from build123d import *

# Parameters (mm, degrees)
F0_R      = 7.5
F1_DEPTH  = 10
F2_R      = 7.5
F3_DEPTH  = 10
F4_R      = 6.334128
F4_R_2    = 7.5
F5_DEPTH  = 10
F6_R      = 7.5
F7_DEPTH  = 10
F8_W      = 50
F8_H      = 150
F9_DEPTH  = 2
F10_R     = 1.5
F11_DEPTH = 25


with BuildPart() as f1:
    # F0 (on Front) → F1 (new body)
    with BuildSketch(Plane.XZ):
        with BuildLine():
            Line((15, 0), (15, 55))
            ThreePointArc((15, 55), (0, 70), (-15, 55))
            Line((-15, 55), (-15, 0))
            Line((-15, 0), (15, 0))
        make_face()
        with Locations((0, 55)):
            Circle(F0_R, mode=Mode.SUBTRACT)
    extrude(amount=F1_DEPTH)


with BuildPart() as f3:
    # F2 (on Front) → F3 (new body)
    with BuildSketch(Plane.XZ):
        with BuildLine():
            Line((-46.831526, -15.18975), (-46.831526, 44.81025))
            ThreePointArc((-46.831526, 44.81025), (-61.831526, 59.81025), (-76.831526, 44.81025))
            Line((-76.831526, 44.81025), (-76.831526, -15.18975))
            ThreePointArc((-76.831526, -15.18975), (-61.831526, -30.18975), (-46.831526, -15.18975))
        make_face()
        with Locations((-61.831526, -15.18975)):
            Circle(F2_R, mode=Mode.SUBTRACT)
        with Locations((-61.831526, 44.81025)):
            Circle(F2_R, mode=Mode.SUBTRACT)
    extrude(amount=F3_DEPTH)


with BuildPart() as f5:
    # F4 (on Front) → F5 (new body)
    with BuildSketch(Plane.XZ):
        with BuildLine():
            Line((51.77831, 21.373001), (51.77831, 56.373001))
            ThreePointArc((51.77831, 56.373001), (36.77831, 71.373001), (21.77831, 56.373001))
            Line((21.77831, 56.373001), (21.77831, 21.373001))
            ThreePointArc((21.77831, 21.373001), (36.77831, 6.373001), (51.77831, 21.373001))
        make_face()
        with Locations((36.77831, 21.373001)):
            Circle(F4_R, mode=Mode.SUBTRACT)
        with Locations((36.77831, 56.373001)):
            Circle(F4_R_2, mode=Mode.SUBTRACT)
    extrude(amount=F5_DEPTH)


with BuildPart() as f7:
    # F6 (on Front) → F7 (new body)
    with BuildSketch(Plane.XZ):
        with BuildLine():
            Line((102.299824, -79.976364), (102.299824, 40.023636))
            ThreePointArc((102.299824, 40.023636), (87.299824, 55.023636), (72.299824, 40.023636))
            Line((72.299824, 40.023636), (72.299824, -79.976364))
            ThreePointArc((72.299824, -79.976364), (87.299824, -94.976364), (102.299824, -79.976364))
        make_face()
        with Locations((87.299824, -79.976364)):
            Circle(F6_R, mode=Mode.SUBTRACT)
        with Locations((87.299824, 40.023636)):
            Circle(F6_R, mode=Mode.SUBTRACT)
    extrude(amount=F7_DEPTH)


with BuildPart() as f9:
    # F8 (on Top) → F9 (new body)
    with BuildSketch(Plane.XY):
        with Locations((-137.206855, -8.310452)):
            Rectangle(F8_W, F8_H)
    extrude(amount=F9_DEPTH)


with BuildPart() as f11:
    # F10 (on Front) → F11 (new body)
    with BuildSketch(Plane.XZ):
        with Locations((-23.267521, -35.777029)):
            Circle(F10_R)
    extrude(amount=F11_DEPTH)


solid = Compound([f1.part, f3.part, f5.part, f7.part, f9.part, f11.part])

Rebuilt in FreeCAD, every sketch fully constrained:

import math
import FreeCAD as App
import Part
import Sketcher
from FreeCAD import Vector
Q = App.Units.Quantity


def add_polygon(sketch, points):
    """Adds a closed chain of lines whose ends are joined by coincident constraints."""
    first, n = sketch.GeometryCount, len(points)
    for a, b in zip(points, points[1:] + points[:1]):
        sketch.addGeometry(Part.LineSegment(App.Vector(*a, 0), App.Vector(*b, 0)), False)
    for i in range(n):
        sketch.addConstraint(Sketcher.Constraint("Coincident", first + i, 2, first + (i + 1) % n, 1))

doc = App.newDocument("Part")
body = doc.addObject("PartDesign::Body", "Body")

sketch1 = body.newObject("Sketcher::SketchObject", "Sketch")
sketch1.AttachmentSupport = (doc.getObject("XZ_Plane"), [""])
sketch1.MapMode = "FlatFace"
sketch1.addGeometry([
    Part.LineSegment(Vector(15, 0, 0), Vector(15, 55, 0)),
    Part.ArcOfCircle(Part.Circle(Vector(0, 55, 0), Vector(0, 0, 1), 15), math.radians(0), math.radians(180)),
    Part.LineSegment(Vector(-15, 55, 0), Vector(-15, 0, 0)),
    Part.LineSegment(Vector(-15, 0, 0), Vector(15, 0, 0)),
    Part.Circle(Vector(0, 55, 0), Vector(0, 0, 1), 8),
], False)
sketch1.addConstraint([
    Sketcher.Constraint("Tangent", 0, 2, 1, 1),
    Sketcher.Constraint("Tangent", 1, 2, 2, 1),
    Sketcher.Constraint("Coincident", 2, 2, 3, 1),
    Sketcher.Constraint("Coincident", 3, 2, 0, 1),
    Sketcher.Constraint("Vertical", 0),
    Sketcher.Constraint("Vertical", 2),
    Sketcher.Constraint("Horizontal", 3),
    Sketcher.Constraint("Coincident", 4, 3, 1, 3),
    Sketcher.Constraint("Symmetric", 2, 2, 3, 2, -1, 1),
    Sketcher.Constraint("Diameter", 4, Q("15 mm")),
    Sketcher.Constraint("Radius", 1, Q("15 mm")),
    Sketcher.Constraint("DistanceY", 0, 1, 0, 2, Q("55 mm")),
])
pad1 = body.newObject("PartDesign::Pad", "Pad")
pad1.Profile = sketch1
pad1.Length = 10
body2 = doc.addObject("PartDesign::Body", "Body001")

sketch2 = body2.newObject("Sketcher::SketchObject", "Sketch001")
sketch2.AttachmentSupport = (doc.getObject("XZ_Plane001"), [""])
sketch2.MapMode = "FlatFace"
sketch2.addGeometry([
    Part.LineSegment(Vector(-47, -15, 0), Vector(-47, 45, 0)),
    Part.ArcOfCircle(Part.Circle(Vector(-62, 45, 0), Vector(0, 0, 1), 15), math.radians(0), math.radians(180)),
    Part.LineSegment(Vector(-77, 45, 0), Vector(-77, -15, 0)),
    Part.ArcOfCircle(Part.Circle(Vector(-62, -15, 0), Vector(0, 0, 1), 15), math.radians(180), math.radians(360)),
    Part.Circle(Vector(-62, -15, 0), Vector(0, 0, 1), 8),
    Part.Circle(Vector(-62, 45, 0), Vector(0, 0, 1), 8),
], False)
sketch2.addConstraint([
    Sketcher.Constraint("Tangent", 0, 2, 1, 1),
    Sketcher.Constraint("Tangent", 1, 2, 2, 1),
    Sketcher.Constraint("Tangent", 2, 2, 3, 1),
    Sketcher.Constraint("Tangent", 3, 2, 0, 1),
    Sketcher.Constraint("Vertical", 0),
    Sketcher.Constraint("Vertical", 2),
    Sketcher.Constraint("Coincident", 4, 3, 3, 3),
    Sketcher.Constraint("Coincident", 5, 3, 1, 3),
    Sketcher.Constraint("Equal", 4, 5),
    Sketcher.Constraint("Diameter", 4, Q("15 mm")),
    Sketcher.Constraint("Radius", 1, Q("15 mm")),
    Sketcher.Constraint("DistanceY", 0, 1, 0, 2, Q("60 mm")),
    Sketcher.Constraint("DistanceY", -1, 1, 1, 3, Q("44.81025 mm")),
    Sketcher.Constraint("DistanceX", 1, 3, -1, 1, Q("61.831526 mm")),
])
pad2 = body2.newObject("PartDesign::Pad", "Pad001")
pad2.Profile = sketch2
pad2.Length = 10
body3 = doc.addObject("PartDesign::Body", "Body002")

sketch3 = body3.newObject("Sketcher::SketchObject", "Sketch002")
sketch3.AttachmentSupport = (doc.getObject("XZ_Plane002"), [""])
sketch3.MapMode = "FlatFace"
sketch3.addGeometry([
    Part.LineSegment(Vector(52, 21, 0), Vector(52, 56, 0)),
    Part.ArcOfCircle(Part.Circle(Vector(37, 56, 0), Vector(0, 0, 1), 15), math.radians(0), math.radians(180)),
    Part.LineSegment(Vector(22, 56, 0), Vector(22, 21, 0)),
    Part.ArcOfCircle(Part.Circle(Vector(37, 21, 0), Vector(0, 0, 1), 15), math.radians(180), math.radians(360)),
    Part.Circle(Vector(37, 21, 0), Vector(0, 0, 1), 6),
    Part.Circle(Vector(37, 56, 0), Vector(0, 0, 1), 8),
], False)
sketch3.addConstraint([
    Sketcher.Constraint("Tangent", 0, 2, 1, 1),
    Sketcher.Constraint("Tangent", 1, 2, 2, 1),
    Sketcher.Constraint("Tangent", 2, 2, 3, 1),
    Sketcher.Constraint("Tangent", 3, 2, 0, 1),
    Sketcher.Constraint("Vertical", 0),
    Sketcher.Constraint("Vertical", 2),
    Sketcher.Constraint("Coincident", 4, 3, 3, 3),
    Sketcher.Constraint("Coincident", 5, 3, 1, 3),
    Sketcher.Constraint("Diameter", 5, Q("15 mm")),
    Sketcher.Constraint("Radius", 1, Q("15 mm")),
    Sketcher.Constraint("DistanceY", 0, 1, 0, 2, Q("35 mm")),
    Sketcher.Constraint("Diameter", 4, Q("12.668256 mm")),
    Sketcher.Constraint("DistanceY", -1, 1, 1, 3, Q("56.373001 mm")),
    Sketcher.Constraint("DistanceX", -1, 1, 1, 3, Q("36.77831 mm")),
])
pad3 = body3.newObject("PartDesign::Pad", "Pad002")
pad3.Profile = sketch3
pad3.Length = 10
body4 = doc.addObject("PartDesign::Body", "Body003")

sketch4 = body4.newObject("Sketcher::SketchObject", "Sketch003")
sketch4.AttachmentSupport = (doc.getObject("XZ_Plane003"), [""])
sketch4.MapMode = "FlatFace"
sketch4.addGeometry([
    Part.LineSegment(Vector(102, -80, 0), Vector(102, 40, 0)),
    Part.ArcOfCircle(Part.Circle(Vector(87, 40, 0), Vector(0, 0, 1), 15), math.radians(0), math.radians(180)),
    Part.LineSegment(Vector(72, 40, 0), Vector(72, -80, 0)),
    Part.ArcOfCircle(Part.Circle(Vector(87, -80, 0), Vector(0, 0, 1), 15), math.radians(180), math.radians(360)),
    Part.Circle(Vector(87, -80, 0), Vector(0, 0, 1), 8),
    Part.Circle(Vector(87, 40, 0), Vector(0, 0, 1), 8),
], False)
sketch4.addConstraint([
    Sketcher.Constraint("Tangent", 0, 2, 1, 1),
    Sketcher.Constraint("Tangent", 1, 2, 2, 1),
    Sketcher.Constraint("Tangent", 2, 2, 3, 1),
    Sketcher.Constraint("Tangent", 3, 2, 0, 1),
    Sketcher.Constraint("Vertical", 0),
    Sketcher.Constraint("Vertical", 2),
    Sketcher.Constraint("Coincident", 4, 3, 3, 3),
    Sketcher.Constraint("Coincident", 5, 3, 1, 3),
    Sketcher.Constraint("Equal", 4, 5),
    Sketcher.Constraint("Diameter", 4, Q("15 mm")),
    Sketcher.Constraint("Radius", 1, Q("15 mm")),
    Sketcher.Constraint("DistanceY", 0, 1, 0, 2, Q("120 mm")),
    Sketcher.Constraint("DistanceX", -1, 1, 1, 3, Q("87.299824 mm")),
    Sketcher.Constraint("DistanceY", -1, 1, 1, 3, Q("40.023636 mm")),
])
pad4 = body4.newObject("PartDesign::Pad", "Pad003")
pad4.Profile = sketch4
pad4.Length = 10
body5 = doc.addObject("PartDesign::Body", "Body004")

sketch5 = body5.newObject("Sketcher::SketchObject", "Sketch004")
sketch5.AttachmentSupport = (doc.getObject("XY_Plane004"), [""])
sketch5.MapMode = "FlatFace"
add_polygon(sketch5, [(-162, 67), (-162, -83), (-112, -83), (-112, 67)])
sketch5.addConstraint([
    Sketcher.Constraint("Vertical", 0),
    Sketcher.Constraint("Horizontal", 1),
    Sketcher.Constraint("Vertical", 2),
    Sketcher.Constraint("Horizontal", 3),
    Sketcher.Constraint("DistanceX", 1, 1, 1, 2, Q("50 mm")),
    Sketcher.Constraint("DistanceY", 0, 2, 0, 1, Q("150 mm")),
    Sketcher.Constraint("DistanceY", 0, 2, -1, 1, Q("83.310452 mm")),
    Sketcher.Constraint("DistanceX", 0, 2, -1, 1, Q("162.206855 mm")),
])
pad5 = body5.newObject("PartDesign::Pad", "Pad004")
pad5.Profile = sketch5
pad5.Length = 2
body6 = doc.addObject("PartDesign::Body", "Body005")

sketch6 = body6.newObject("Sketcher::SketchObject", "Sketch005")
sketch6.AttachmentSupport = (doc.getObject("XZ_Plane005"), [""])
sketch6.MapMode = "FlatFace"
sketch6.addGeometry(Part.Circle(Vector(-23.3, -35.8, 0), Vector(0, 0, 1), 1.5), False)
sketch6.addConstraint([
    Sketcher.Constraint("Diameter", 0, Q("3 mm")),
    Sketcher.Constraint("DistanceX", 0, 3, -1, 1, Q("23.267521 mm")),
    Sketcher.Constraint("DistanceY", 0, 3, -1, 1, Q("35.777029 mm")),
])
pad6 = body6.newObject("PartDesign::Pad", "Pad005")
pad6.Profile = sketch6
pad6.Length = 25

doc.recompute()
